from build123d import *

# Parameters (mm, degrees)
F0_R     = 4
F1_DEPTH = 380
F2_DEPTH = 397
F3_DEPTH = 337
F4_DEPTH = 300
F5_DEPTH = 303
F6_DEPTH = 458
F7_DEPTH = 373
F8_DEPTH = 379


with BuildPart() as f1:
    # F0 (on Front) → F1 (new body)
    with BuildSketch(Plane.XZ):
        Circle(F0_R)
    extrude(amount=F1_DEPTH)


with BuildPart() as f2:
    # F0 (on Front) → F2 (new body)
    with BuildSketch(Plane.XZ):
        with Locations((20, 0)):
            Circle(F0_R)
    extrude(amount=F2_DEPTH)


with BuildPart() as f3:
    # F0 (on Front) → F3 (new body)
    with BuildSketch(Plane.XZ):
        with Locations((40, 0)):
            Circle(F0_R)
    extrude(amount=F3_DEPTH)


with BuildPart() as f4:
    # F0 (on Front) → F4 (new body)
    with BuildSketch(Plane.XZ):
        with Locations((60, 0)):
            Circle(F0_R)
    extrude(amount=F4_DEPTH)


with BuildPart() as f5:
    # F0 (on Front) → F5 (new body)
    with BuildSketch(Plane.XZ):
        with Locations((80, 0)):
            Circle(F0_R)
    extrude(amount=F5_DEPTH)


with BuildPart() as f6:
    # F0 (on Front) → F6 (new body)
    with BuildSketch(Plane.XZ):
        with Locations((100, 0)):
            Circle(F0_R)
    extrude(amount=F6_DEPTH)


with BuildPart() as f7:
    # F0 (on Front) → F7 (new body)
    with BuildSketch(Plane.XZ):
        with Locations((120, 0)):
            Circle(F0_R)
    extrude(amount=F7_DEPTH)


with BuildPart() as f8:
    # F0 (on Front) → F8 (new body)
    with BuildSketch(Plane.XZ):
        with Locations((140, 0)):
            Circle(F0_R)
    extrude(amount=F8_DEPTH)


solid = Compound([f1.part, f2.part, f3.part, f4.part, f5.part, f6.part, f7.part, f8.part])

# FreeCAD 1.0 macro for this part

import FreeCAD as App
import Part
import Sketcher

doc = App.newDocument("Part")
body = doc.addObject("PartDesign::Body", "Body")

sketch1 = body.newObject("Sketcher::SketchObject", "Sketch")
sketch1.AttachmentSupport = (doc.getObject("XZ_Plane"), [""])
sketch1.MapMode = "FlatFace"
sketch1.addGeometry(Part.Circle(App.Vector(0, 0, 0), App.Vector(0, 0, 1), 4), False)
sketch1.addConstraint([
    Sketcher.Constraint("Coincident", 0, 3, -1, 1),
    Sketcher.Constraint("Diameter", 0, 8.0),
])
pad1 = body.newObject("PartDesign::Pad", "Pad")
pad1.Profile = sketch1
pad1.Length = 380
body2 = doc.addObject("PartDesign::Body", "Body001")

sketch2 = body2.newObject("Sketcher::SketchObject", "Sketch001")
sketch2.AttachmentSupport = (doc.getObject("XZ_Plane001"), [""])
sketch2.MapMode = "FlatFace"
sketch2.addGeometry(Part.Circle(App.Vector(20, 0, 0), App.Vector(0, 0, 1), 4), False)
sketch2.addConstraint([
    Sketcher.Constraint("PointOnObject", 0, 3, -1),
    Sketcher.Constraint("Diameter", 0, 8.0),
    Sketcher.Constraint("DistanceX", -1, 1, 0, 3, 20.0),
])
pad2 = body2.newObject("PartDesign::Pad", "Pad001")
pad2.Profile = sketch2
pad2.Length = 397
body3 = doc.addObject("PartDesign::Body", "Body002")

sketch3 = body3.newObject("Sketcher::SketchObject", "Sketch002")
sketch3.AttachmentSupport = (doc.getObject("XZ_Plane002"), [""])
sketch3.MapMode = "FlatFace"
sketch3.addGeometry(Part.Circle(App.Vector(40, 0, 0), App.Vector(0, 0, 1), 4), False)
sketch3.addConstraint([
    Sketcher.Constraint("PointOnObject", 0, 3, -1),
    Sketcher.Constraint("Diameter", 0, 8.0),
    Sketcher.Constraint("DistanceX", -1, 1, 0, 3, 40.0),
])
pad3 = body3.newObject("PartDesign::Pad", "Pad002")
pad3.Profile = sketch3
pad3.Length = 337
body4 = doc.addObject("PartDesign::Body", "Body003")

sketch4 = body4.newObject("Sketcher::SketchObject", "Sketch003")
sketch4.AttachmentSupport = (doc.getObject("XZ_Plane003"), [""])
sketch4.MapMode = "FlatFace"
sketch4.addGeometry(Part.Circle(App.Vector(60, 0, 0), App.Vector(0, 0, 1), 4), False)
sketch4.addConstraint([
    Sketcher.Constraint("PointOnObject", 0, 3, -1),
    Sketcher.Constraint("Diameter", 0, 8.0),
    Sketcher.Constraint("DistanceX", -1, 1, 0, 3, 60.0),
])
pad4 = body4.newObject("PartDesign::Pad", "Pad003")
pad4.Profile = sketch4
pad4.Length = 300
body5 = doc.addObject("PartDesign::Body", "Body004")

sketch5 = body5.newObject("Sketcher::SketchObject", "Sketch004")
sketch5.AttachmentSupport = (doc.getObject("XZ_Plane004"), [""])
sketch5.MapMode = "FlatFace"
sketch5.addGeometry(Part.Circle(App.Vector(80, 0, 0), App.Vector(0, 0, 1), 4), False)
sketch5.addConstraint([
    Sketcher.Constraint("PointOnObject", 0, 3, -1),
    Sketcher.Constraint("Diameter", 0, 8.0),
    Sketcher.Constraint("DistanceX", -1, 1, 0, 3, 80.0),
])
pad5 = body5.newObject("PartDesign::Pad", "Pad004")
pad5.Profile = sketch5
pad5.Length = 303
body6 = doc.addObject("PartDesign::Body", "Body005")

sketch6 = body6.newObject("Sketcher::SketchObject", "Sketch005")
sketch6.AttachmentSupport = (doc.getObject("XZ_Plane005"), [""])
sketch6.MapMode = "FlatFace"
sketch6.addGeometry(Part.Circle(App.Vector(100, 0, 0), App.Vector(0, 0, 1), 4), False)
sketch6.addConstraint([
    Sketcher.Constraint("PointOnObject", 0, 3, -1),
    Sketcher.Constraint("Diameter", 0, 8.0),
    Sketcher.Constraint("DistanceX", -1, 1, 0, 3, 100.0),
])
pad6 = body6.newObject("PartDesign::Pad", "Pad005")
pad6.Profile = sketch6
pad6.Length = 458
body7 = doc.addObject("PartDesign::Body", "Body006")

sketch7 = body7.newObject("Sketcher::SketchObject", "Sketch006")
sketch7.AttachmentSupport = (doc.getObject("XZ_Plane006"), [""])
sketch7.MapMode = "FlatFace"
sketch7.addGeometry(Part.Circle(App.Vector(120, 0, 0), App.Vector(0, 0, 1), 4), False)
sketch7.addConstraint([
    Sketcher.Constraint("PointOnObject", 0, 3, -1),
    Sketcher.Constraint("Diameter", 0, 8.0),
    Sketcher.Constraint("DistanceX", -1, 1, 0, 3, 120.0),
])
pad7 = body7.newObject("PartDesign::Pad", "Pad006")
pad7.Profile = sketch7
pad7.Length = 373
body8 = doc.addObject("PartDesign::Body", "Body007")

sketch8 = body8.newObject("Sketcher::SketchObject", "Sketch007")
sketch8.AttachmentSupport = (doc.getObject("XZ_Plane007"), [""])
sketch8.MapMode = "FlatFace"
sketch8.addGeometry(Part.Circle(App.Vector(140, 0, 0), App.Vector(0, 0, 1), 4), False)
sketch8.addConstraint([
    Sketcher.Constraint("PointOnObject", 0, 3, -1),
    Sketcher.Constraint("Diameter", 0, 8.0),
    Sketcher.Constraint("DistanceX", -1, 1, 0, 3, 140.0),
])
pad8 = body8.newObject("PartDesign::Pad", "Pad007")
pad8.Profile = sketch8
pad8.Length = 379

doc.recompute()
